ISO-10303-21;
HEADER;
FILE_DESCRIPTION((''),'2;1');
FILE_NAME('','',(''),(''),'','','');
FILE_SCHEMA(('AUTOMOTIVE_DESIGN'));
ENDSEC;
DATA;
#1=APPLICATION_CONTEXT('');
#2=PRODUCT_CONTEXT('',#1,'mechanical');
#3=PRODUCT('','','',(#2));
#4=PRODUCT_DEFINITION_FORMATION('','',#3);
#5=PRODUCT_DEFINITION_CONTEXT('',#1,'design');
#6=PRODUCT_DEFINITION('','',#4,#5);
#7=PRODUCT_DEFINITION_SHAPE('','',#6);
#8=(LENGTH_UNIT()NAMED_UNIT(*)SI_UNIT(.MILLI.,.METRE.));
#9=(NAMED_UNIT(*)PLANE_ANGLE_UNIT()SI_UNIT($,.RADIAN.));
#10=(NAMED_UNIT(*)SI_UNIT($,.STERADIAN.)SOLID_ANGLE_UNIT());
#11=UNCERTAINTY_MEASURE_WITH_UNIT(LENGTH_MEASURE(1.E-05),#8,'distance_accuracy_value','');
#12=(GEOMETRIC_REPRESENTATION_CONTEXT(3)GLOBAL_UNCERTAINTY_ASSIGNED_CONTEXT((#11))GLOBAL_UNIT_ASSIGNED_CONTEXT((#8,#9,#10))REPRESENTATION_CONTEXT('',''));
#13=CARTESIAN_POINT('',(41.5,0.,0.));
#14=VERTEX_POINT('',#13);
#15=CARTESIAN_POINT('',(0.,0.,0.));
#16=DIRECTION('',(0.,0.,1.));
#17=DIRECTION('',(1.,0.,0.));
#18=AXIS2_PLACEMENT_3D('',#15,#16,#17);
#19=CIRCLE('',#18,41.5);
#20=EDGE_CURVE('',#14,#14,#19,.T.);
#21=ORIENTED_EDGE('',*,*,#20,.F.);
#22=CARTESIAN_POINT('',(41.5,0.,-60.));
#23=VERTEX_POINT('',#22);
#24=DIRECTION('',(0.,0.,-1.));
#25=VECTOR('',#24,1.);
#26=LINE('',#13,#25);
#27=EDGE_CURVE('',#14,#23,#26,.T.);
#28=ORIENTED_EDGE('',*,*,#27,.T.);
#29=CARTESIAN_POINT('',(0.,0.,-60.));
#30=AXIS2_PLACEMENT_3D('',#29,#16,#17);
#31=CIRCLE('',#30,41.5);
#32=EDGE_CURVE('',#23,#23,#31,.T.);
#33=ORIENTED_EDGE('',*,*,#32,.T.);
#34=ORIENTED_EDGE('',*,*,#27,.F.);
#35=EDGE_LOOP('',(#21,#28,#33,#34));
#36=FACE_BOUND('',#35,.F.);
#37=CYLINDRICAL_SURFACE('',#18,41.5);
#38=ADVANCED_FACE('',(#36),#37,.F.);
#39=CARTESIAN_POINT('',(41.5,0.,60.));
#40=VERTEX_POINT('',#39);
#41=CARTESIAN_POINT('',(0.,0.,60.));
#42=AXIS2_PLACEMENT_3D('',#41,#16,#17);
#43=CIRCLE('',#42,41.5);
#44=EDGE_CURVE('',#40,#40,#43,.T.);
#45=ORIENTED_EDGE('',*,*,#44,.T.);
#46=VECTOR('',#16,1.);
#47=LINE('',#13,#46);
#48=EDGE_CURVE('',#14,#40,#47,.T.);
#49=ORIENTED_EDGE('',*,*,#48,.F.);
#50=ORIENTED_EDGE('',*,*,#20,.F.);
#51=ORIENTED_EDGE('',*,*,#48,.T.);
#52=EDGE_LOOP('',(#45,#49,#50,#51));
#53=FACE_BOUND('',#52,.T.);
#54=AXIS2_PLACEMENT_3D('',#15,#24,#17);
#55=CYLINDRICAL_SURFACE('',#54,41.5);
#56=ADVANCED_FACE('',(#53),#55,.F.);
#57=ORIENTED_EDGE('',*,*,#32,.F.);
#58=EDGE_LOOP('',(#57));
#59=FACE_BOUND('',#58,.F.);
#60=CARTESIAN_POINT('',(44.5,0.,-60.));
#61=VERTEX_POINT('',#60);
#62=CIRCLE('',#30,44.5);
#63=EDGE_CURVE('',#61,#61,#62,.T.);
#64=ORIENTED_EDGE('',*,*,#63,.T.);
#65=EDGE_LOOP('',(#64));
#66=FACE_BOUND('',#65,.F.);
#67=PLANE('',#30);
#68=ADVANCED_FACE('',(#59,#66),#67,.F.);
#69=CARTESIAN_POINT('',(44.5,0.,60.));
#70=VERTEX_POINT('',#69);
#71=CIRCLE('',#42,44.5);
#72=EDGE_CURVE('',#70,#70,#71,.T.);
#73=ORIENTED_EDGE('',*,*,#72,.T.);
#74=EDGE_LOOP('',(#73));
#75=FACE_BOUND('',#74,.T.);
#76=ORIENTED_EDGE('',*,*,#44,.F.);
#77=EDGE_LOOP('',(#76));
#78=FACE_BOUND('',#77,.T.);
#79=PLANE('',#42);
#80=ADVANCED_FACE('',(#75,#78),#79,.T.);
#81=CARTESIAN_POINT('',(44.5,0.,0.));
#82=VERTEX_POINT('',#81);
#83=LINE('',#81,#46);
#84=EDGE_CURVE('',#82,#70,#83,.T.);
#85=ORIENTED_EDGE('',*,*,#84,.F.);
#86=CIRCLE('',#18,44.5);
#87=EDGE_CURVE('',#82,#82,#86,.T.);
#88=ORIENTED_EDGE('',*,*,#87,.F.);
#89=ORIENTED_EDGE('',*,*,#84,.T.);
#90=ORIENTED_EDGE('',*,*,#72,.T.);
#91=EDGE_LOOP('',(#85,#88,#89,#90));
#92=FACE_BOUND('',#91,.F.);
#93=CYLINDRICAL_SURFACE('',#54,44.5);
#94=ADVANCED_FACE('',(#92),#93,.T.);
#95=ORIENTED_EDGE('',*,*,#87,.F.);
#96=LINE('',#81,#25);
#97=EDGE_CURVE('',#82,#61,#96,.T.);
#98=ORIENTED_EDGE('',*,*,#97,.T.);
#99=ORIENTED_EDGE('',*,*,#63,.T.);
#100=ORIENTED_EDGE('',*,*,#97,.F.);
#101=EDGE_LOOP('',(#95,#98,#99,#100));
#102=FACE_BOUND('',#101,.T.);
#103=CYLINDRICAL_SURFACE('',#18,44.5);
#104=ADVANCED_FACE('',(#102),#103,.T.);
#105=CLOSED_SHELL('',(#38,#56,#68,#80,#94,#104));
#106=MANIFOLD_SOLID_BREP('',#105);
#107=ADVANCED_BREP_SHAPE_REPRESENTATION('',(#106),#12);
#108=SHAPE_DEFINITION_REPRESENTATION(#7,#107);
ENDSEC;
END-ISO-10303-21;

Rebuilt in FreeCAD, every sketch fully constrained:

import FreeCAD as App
import Part
import Sketcher
from FreeCAD import Vector

doc = App.newDocument("Part")
params = doc.addObject("Spreadsheet::Sheet", "Params")
for row, (alias, value) in enumerate([
    ("sketch1_diameter", "89 mm"),
    ("sketch1_diameter2", "83 mm"),
    ("pad1_length", "120 mm"),
], start=1):
    params.set(f"A{row}", alias)
    params.set(f"B{row}", "=" + value)
    params.setAlias(f"B{row}", alias)

body = doc.addObject("PartDesign::Body", "Body")

sketch1 = body.newObject("Sketcher::SketchObject", "Sketch")
sketch1.AttachmentSupport = (doc.getObject("XY_Plane"), [""])
sketch1.MapMode = "FlatFace"
sketch1.addGeometry([
    Part.Circle(Vector(0, 0, 0), Vector(0, 0, 1), 44),
    Part.Circle(Vector(0, 0, 0), Vector(0, 0, 1), 42),
], False)
sketch1.addConstraint([
    Sketcher.Constraint("Coincident", 0, 3, -1, 1),
    Sketcher.Constraint("Coincident", 1, 3, -1, 1),
    Sketcher.Constraint("Diameter", 0, 89.0),
    Sketcher.Constraint("Diameter", 1, 83.0),
])
sketch1.setExpression("Constraints[2]", "Params.sketch1_diameter")
sketch1.setExpression("Constraints[3]", "Params.sketch1_diameter2")
pad1 = body.newObject("PartDesign::Pad", "Pad")
pad1.Profile = sketch1
pad1.setExpression("Length", "Params.pad1_length")
pad1.Midplane = True

doc.recompute()
